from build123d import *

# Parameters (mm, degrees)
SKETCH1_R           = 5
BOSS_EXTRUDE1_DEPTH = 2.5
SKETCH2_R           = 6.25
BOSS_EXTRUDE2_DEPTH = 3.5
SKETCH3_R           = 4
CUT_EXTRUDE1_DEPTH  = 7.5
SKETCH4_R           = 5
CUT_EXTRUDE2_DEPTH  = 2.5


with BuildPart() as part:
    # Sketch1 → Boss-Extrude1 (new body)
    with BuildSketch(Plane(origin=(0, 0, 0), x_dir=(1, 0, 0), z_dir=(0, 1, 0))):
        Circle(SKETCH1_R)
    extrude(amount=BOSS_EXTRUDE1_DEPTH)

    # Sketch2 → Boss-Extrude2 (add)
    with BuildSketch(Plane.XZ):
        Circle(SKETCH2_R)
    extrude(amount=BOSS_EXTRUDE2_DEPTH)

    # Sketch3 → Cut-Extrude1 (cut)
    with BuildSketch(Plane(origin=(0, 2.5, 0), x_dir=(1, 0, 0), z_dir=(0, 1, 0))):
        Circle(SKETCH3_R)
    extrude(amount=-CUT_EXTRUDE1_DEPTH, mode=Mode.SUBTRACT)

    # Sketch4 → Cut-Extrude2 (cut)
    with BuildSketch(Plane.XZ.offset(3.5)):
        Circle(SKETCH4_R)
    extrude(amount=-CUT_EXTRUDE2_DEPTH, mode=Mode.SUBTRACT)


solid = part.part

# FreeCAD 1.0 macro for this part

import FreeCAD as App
import Part
import Sketcher

doc = App.newDocument("Part")
body = doc.addObject("PartDesign::Body", "Body")

# Sketch on XZ plane
sketch1 = doc.addObject("Sketcher::SketchObject", "Sketch")
body.addObject(sketch1)
sketch1.AttachmentSupport = (doc.XZ_Plane, [""])
sketch1.MapMode = "FlatFace"
sketch1.addGeometry(Part.Circle(App.Vector(0, 0, 0), App.Vector(0, 0, 1), 5), False)
sketch1.addConstraint([
    Sketcher.Constraint("Coincident", 0, 3, -1, 1),
    Sketcher.Constraint("Diameter", 0, 10.0),
])
pad1 = doc.addObject("PartDesign::Pad", "Pad")
body.addObject(pad1)
pad1.Profile = sketch1
pad1.Length = 2.5
pad1.Reversed = True

# Sketch on XZ plane
sketch2 = doc.addObject("Sketcher::SketchObject", "Sketch001")
body.addObject(sketch2)
sketch2.AttachmentSupport = (doc.XZ_Plane, [""])
sketch2.MapMode = "FlatFace"
sketch2.addGeometry(Part.Circle(App.Vector(0, 0, 0), App.Vector(0, 0, 1), 6.25), False)
sketch2.addConstraint([
    Sketcher.Constraint("Coincident", 0, 3, -1, 1),
    Sketcher.Constraint("Diameter", 0, 12.5),
])
pad2 = doc.addObject("PartDesign::Pad", "Pad001")
body.addObject(pad2)
pad2.Profile = sketch2
pad2.Length = 3.5

# Sketch on XZ plane
sketch3 = doc.addObject("Sketcher::SketchObject", "Sketch002")
body.addObject(sketch3)
sketch3.AttachmentSupport = (doc.XZ_Plane, [""])
sketch3.MapMode = "FlatFace"
sketch3.AttachmentOffset = App.Placement(App.Vector(0, 0, -2.5), App.Rotation())
sketch3.addGeometry(Part.Circle(App.Vector(0, 0, 0), App.Vector(0, 0, 1), 4), False)
sketch3.addConstraint([
    Sketcher.Constraint("Coincident", 0, 3, -1, 1),
    Sketcher.Constraint("Diameter", 0, 8.0),
])
pocket1 = doc.addObject("PartDesign::Pocket", "Pocket")
body.addObject(pocket1)
pocket1.Profile = sketch3
pocket1.Length = 7.5
pocket1.Reversed = True

# Sketch on XZ plane
sketch4 = doc.addObject("Sketcher::SketchObject", "Sketch003")
body.addObject(sketch4)
sketch4.AttachmentSupport = (doc.XZ_Plane, [""])
sketch4.MapMode = "FlatFace"
sketch4.AttachmentOffset = App.Placement(App.Vector(0, 0, 3.5), App.Rotation())
sketch4.addGeometry(Part.Circle(App.Vector(0, 0, 0), App.Vector(0, 0, 1), 5), False)
sketch4.addConstraint([
    Sketcher.Constraint("Coincident", 0, 3, -1, 1),
    Sketcher.Constraint("Diameter", 0, 10.0),
])
pocket2 = doc.addObject("PartDesign::Pocket", "Pocket001")
body.addObject(pocket2)
pocket2.Profile = sketch4
pocket2.Length = 2.5

doc.recompute()
